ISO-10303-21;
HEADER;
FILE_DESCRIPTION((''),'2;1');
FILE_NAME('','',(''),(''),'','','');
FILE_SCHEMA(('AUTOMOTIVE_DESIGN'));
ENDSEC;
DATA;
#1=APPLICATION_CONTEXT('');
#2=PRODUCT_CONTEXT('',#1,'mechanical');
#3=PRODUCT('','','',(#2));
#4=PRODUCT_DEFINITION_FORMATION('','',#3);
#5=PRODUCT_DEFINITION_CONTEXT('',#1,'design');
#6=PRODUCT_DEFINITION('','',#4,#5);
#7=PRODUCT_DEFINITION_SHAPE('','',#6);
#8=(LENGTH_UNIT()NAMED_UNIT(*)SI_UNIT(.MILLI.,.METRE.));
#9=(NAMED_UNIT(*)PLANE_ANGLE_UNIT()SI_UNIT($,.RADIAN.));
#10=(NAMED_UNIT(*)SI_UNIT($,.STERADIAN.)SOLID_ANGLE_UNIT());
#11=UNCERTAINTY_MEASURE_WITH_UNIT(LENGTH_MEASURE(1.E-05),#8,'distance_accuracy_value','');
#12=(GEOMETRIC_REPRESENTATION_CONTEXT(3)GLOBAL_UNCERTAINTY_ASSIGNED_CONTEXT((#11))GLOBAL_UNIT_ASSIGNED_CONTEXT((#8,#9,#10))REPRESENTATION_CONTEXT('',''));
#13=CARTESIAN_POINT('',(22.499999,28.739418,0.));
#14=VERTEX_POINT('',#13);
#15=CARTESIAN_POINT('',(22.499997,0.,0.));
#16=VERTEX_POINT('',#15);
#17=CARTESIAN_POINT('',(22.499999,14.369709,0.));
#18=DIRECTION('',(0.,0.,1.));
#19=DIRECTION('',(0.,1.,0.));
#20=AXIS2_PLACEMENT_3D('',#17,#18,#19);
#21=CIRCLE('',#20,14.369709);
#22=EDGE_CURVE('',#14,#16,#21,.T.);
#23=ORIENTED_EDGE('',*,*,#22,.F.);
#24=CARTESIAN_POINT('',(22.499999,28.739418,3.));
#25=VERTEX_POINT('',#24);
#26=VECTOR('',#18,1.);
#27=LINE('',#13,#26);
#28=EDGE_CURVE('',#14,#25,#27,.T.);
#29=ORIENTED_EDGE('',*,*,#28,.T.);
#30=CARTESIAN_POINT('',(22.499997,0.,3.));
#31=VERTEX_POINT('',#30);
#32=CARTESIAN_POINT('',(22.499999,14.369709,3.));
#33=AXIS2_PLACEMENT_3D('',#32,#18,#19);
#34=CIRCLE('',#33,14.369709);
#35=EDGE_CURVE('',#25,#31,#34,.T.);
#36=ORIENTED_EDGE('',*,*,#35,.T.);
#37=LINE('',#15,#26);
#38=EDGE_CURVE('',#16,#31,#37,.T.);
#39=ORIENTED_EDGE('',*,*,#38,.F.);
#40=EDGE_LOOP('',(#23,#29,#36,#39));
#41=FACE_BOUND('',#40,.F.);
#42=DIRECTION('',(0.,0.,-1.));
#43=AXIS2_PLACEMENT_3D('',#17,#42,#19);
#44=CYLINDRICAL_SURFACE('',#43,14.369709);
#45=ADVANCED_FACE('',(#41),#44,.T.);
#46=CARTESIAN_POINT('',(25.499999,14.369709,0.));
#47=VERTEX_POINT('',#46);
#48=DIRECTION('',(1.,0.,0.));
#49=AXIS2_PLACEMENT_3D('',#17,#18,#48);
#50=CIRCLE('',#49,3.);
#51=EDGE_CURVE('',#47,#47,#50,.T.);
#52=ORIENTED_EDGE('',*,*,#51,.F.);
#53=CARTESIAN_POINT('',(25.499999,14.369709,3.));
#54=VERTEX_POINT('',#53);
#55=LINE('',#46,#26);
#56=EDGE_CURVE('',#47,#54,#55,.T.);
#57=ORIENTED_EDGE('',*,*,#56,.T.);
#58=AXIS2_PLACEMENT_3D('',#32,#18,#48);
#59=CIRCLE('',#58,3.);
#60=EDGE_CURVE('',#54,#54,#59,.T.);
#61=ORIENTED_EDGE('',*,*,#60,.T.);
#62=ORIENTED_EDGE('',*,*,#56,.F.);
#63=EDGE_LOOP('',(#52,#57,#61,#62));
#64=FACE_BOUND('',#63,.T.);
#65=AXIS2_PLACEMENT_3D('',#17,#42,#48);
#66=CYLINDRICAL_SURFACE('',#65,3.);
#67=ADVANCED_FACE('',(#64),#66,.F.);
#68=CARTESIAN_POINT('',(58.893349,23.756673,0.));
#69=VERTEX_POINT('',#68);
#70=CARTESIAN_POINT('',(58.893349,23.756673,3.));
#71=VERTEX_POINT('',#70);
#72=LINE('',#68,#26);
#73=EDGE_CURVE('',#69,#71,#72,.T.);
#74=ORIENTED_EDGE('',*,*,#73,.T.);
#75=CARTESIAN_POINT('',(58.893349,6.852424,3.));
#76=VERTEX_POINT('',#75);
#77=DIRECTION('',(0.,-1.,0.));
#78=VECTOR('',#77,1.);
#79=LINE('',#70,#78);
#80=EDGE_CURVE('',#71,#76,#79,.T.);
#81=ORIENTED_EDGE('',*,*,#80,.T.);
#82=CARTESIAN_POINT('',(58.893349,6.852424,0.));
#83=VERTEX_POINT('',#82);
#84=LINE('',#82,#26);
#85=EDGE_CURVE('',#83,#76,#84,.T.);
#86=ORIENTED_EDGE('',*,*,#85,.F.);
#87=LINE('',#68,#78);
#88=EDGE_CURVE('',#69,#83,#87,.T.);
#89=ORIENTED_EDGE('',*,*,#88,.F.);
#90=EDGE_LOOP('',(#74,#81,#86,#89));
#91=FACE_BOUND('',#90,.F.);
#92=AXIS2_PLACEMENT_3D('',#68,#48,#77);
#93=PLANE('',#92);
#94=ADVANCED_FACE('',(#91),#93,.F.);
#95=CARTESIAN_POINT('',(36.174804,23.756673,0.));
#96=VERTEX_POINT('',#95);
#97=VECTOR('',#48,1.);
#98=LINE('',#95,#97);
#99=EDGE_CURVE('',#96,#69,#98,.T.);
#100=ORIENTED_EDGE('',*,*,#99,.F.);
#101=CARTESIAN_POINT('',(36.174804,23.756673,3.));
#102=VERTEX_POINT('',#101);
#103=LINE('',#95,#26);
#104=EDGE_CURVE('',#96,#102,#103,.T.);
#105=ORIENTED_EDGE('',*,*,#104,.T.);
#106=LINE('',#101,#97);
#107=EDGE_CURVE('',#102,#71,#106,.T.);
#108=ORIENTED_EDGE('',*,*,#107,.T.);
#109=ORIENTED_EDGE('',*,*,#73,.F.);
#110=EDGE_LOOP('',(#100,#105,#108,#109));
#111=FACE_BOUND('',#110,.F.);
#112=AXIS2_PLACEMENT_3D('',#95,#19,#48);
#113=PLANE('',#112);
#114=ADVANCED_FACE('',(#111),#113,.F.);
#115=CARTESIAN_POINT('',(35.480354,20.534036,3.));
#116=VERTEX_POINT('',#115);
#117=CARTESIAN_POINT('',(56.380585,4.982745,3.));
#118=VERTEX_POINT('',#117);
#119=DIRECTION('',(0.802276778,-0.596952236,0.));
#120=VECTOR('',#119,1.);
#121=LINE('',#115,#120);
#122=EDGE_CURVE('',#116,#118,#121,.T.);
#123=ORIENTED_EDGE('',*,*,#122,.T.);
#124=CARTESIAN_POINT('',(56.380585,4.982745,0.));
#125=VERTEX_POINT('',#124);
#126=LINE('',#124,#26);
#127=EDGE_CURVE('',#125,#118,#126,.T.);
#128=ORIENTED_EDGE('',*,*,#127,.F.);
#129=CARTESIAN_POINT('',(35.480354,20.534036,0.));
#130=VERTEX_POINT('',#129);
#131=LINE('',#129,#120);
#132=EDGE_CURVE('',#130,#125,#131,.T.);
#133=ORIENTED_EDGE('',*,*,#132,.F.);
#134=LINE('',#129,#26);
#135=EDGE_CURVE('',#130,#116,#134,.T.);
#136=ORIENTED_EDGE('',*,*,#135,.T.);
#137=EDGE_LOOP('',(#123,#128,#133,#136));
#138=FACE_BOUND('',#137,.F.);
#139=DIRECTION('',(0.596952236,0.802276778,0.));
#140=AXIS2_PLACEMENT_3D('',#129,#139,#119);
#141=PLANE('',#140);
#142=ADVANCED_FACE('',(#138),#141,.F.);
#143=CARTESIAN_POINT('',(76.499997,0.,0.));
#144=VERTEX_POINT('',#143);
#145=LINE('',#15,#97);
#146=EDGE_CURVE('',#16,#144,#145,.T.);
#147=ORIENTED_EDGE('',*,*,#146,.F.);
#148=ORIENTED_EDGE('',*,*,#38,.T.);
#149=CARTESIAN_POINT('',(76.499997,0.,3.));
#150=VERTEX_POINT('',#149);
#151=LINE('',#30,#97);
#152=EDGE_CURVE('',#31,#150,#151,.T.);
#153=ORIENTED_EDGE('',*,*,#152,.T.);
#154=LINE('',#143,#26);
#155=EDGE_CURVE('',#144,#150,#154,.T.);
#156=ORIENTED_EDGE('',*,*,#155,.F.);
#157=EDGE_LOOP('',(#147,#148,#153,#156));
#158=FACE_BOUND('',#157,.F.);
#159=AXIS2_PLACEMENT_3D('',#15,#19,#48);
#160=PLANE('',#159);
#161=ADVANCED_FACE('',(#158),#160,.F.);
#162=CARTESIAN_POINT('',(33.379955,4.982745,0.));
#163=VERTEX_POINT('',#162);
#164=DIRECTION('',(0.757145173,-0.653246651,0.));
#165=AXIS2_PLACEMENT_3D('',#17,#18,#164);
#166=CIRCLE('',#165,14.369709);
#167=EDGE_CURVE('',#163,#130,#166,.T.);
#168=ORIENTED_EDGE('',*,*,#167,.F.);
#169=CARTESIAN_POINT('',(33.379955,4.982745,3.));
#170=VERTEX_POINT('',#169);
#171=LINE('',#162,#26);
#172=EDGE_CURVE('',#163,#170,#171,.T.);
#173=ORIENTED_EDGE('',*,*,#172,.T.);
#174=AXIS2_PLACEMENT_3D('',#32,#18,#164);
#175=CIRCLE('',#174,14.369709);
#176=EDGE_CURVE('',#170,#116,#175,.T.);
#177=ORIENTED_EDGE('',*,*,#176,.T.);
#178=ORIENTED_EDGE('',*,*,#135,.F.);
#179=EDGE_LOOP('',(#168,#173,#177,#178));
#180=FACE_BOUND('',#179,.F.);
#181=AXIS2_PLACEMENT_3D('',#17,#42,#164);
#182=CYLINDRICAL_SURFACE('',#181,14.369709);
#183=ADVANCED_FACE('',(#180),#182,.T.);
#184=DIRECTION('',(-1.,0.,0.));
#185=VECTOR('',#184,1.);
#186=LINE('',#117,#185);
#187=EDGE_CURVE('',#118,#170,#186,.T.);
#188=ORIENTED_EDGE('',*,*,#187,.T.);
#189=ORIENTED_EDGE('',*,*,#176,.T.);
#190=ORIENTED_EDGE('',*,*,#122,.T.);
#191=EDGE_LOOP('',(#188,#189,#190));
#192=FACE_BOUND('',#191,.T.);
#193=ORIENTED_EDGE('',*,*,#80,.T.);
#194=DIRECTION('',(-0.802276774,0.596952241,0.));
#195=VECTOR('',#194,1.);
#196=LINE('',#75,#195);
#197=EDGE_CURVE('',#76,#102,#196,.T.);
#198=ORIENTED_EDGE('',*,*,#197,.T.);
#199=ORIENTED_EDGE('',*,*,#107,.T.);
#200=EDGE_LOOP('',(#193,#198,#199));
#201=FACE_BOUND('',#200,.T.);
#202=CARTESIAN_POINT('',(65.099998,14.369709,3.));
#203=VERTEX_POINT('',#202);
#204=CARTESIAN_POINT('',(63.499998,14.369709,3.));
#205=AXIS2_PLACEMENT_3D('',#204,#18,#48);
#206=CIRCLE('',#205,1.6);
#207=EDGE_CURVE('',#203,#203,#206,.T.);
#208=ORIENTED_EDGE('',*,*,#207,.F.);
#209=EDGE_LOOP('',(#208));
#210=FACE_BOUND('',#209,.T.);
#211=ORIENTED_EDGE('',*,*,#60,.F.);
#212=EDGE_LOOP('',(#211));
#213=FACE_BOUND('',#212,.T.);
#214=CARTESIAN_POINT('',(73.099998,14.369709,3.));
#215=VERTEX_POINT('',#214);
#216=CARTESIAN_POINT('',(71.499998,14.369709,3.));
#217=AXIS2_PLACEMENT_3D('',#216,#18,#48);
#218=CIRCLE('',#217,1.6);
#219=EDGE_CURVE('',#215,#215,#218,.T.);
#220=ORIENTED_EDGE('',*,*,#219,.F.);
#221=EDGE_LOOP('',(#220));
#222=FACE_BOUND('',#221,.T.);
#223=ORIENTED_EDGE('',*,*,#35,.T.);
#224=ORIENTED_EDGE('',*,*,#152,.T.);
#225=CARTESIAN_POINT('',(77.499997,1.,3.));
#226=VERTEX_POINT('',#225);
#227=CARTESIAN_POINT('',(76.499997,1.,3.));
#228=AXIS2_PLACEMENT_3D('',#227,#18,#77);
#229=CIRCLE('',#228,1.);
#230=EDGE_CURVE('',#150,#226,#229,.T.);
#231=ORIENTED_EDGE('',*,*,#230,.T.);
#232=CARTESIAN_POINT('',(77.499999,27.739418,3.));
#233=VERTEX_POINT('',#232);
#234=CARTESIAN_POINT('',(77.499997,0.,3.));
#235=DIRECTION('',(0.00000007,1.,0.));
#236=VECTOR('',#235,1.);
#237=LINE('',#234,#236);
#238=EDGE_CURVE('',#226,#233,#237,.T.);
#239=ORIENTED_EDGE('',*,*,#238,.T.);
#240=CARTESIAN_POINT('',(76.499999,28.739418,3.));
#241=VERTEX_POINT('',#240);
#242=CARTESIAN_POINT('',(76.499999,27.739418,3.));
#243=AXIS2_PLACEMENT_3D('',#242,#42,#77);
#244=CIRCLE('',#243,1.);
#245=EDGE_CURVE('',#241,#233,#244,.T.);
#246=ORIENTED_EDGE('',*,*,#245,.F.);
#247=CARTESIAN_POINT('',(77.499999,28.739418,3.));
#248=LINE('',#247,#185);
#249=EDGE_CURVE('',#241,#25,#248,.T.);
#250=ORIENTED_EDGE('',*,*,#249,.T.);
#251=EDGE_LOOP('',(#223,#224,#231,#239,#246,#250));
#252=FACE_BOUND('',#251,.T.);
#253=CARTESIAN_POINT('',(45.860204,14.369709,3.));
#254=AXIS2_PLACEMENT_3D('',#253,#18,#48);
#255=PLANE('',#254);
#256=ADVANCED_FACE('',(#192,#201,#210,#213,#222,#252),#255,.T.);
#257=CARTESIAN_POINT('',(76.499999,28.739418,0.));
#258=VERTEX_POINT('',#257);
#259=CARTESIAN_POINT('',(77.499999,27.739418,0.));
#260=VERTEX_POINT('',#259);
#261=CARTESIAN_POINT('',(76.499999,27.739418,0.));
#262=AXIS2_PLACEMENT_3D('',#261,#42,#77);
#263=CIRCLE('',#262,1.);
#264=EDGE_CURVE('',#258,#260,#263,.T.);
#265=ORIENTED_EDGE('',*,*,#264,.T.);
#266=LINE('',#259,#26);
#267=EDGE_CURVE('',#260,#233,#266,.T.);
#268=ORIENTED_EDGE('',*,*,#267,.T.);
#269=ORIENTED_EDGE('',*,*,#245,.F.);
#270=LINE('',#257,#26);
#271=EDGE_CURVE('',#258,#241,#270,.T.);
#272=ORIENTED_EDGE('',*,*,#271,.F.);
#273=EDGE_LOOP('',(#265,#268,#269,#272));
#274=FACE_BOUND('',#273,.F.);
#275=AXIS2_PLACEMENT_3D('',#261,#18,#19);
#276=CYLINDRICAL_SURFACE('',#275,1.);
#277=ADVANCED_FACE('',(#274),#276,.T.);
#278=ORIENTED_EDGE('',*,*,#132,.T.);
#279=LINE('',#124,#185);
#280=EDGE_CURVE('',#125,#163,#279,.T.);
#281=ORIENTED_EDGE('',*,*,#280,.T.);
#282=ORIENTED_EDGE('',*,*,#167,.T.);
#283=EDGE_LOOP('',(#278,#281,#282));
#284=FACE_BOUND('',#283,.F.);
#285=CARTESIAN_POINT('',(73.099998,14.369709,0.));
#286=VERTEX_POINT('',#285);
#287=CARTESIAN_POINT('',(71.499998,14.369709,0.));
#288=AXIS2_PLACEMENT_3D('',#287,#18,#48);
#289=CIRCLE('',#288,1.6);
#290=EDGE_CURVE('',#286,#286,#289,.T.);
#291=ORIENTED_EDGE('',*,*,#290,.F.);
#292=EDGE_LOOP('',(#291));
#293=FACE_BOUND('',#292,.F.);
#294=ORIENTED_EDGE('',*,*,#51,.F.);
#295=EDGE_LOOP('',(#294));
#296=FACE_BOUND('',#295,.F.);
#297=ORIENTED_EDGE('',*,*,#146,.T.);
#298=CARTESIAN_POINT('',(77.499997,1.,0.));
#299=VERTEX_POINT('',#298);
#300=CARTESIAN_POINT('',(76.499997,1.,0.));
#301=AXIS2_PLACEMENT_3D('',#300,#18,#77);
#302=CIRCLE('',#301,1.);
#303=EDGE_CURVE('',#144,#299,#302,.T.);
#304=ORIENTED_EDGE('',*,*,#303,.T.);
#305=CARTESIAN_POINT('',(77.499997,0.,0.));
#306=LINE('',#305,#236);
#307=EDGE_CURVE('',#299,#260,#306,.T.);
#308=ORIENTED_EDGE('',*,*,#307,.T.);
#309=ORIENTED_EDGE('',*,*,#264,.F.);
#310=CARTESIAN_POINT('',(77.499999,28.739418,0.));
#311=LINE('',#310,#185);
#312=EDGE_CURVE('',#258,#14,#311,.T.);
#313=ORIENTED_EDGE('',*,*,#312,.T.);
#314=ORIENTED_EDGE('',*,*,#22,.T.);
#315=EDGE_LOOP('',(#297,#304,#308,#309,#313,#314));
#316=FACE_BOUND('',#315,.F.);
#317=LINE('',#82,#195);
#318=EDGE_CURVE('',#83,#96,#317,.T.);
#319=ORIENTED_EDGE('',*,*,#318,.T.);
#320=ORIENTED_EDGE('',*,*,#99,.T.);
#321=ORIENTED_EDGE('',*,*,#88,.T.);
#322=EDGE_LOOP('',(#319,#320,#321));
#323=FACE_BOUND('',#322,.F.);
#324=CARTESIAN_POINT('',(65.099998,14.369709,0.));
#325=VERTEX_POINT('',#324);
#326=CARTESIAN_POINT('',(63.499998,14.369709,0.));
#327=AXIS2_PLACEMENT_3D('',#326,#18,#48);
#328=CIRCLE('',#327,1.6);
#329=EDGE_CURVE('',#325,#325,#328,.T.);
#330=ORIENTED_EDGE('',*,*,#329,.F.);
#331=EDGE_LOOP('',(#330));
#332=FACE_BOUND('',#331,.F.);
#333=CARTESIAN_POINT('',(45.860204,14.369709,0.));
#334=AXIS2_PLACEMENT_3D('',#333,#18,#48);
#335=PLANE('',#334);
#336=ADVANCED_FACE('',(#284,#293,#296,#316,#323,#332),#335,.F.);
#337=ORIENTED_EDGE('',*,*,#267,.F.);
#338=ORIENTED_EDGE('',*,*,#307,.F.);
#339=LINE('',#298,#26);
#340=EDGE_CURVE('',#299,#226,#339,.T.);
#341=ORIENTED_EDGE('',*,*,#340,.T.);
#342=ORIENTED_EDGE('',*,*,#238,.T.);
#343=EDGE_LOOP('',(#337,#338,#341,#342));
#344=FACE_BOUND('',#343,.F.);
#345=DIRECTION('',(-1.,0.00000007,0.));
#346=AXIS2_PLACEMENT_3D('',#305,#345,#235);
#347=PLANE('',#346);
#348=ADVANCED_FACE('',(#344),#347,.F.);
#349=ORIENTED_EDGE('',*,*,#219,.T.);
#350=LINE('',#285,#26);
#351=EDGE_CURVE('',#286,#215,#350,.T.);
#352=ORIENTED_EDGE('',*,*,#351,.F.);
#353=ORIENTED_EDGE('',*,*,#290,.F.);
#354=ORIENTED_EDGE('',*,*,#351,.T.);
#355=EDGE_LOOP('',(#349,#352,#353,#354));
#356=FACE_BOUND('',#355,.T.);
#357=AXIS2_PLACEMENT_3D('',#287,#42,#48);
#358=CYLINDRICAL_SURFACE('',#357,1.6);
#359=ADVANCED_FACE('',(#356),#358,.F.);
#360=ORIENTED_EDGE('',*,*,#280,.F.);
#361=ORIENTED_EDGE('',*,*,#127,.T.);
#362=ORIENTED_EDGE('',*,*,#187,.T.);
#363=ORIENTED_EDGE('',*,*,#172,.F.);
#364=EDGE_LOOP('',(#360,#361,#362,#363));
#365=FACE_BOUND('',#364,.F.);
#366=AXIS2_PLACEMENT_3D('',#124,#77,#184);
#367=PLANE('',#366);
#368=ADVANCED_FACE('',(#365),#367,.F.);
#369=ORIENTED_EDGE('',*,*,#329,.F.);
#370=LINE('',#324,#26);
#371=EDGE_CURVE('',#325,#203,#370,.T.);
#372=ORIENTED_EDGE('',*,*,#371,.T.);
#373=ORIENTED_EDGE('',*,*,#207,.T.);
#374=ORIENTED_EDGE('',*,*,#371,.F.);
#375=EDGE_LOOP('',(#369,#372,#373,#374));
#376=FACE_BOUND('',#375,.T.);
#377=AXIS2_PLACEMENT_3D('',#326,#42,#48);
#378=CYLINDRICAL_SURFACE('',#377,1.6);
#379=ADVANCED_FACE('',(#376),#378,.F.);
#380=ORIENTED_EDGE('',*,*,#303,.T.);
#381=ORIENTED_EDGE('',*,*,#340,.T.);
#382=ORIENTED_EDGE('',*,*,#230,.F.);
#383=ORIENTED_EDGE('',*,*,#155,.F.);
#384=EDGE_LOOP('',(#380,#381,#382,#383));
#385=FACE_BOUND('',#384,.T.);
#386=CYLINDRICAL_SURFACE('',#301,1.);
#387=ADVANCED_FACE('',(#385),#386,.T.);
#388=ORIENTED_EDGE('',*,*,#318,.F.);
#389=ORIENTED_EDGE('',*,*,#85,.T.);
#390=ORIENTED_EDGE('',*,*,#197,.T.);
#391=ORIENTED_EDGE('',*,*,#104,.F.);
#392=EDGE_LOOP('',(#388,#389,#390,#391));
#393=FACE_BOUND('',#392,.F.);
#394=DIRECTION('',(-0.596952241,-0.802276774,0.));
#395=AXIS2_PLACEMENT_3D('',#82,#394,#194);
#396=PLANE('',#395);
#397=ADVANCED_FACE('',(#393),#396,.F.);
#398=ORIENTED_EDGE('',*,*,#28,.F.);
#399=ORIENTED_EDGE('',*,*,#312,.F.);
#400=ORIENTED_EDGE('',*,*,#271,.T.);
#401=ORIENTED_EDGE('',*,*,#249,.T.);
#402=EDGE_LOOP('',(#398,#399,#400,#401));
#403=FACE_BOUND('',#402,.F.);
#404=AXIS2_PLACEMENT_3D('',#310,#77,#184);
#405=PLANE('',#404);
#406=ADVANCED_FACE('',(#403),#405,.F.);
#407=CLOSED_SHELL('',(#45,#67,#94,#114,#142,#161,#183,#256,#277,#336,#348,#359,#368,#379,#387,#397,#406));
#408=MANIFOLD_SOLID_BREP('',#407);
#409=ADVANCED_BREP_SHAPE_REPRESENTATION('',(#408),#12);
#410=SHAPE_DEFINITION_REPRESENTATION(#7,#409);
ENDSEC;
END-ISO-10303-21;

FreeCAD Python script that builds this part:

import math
import FreeCAD as App
import Part
import Sketcher
from FreeCAD import Vector
Q = App.Units.Quantity


def edges_at(feature, points):
    """Names of the edges that pass closest to the given points."""
    edges = feature.Shape.Edges
    near = lambda p: min(range(len(edges)), key=lambda i: edges[i].distToShape(Part.Vertex(*p))[0])
    return sorted({f"Edge{near(p) + 1}" for p in points})


def add_polygon(sketch, points):
    """Adds a closed chain of lines whose ends are joined by coincident constraints."""
    first, n = sketch.GeometryCount, len(points)
    for a, b in zip(points, points[1:] + points[:1]):
        sketch.addGeometry(Part.LineSegment(App.Vector(*a, 0), App.Vector(*b, 0)), False)
    for i in range(n):
        sketch.addConstraint(Sketcher.Constraint("Coincident", first + i, 2, first + (i + 1) % n, 1))

doc = App.newDocument("Part")
body = doc.addObject("PartDesign::Body", "Body")

# Sketch on XY plane
sketch1 = doc.addObject("Sketcher::SketchObject", "Sketch")
body.addObject(sketch1)
sketch1.AttachmentSupport = (doc.XY_Plane, [""])
sketch1.MapMode = "FlatFace"
sketch1.addGeometry(Part.ArcOfCircle(Part.Circle(Vector(22.499999, 14.369709, 0), Vector(0, 0, 1), 14.369709), math.radians(90), math.radians(269.999992)), False)  # 0
sketch1.addGeometry(Part.LineSegment(Vector(22.499997, 0, 0), Vector(77.499997, 0, 0)), False)  # 1
sketch1.addGeometry(Part.LineSegment(Vector(77.499997, 0, 0), Vector(77.499999, 28.739418, 0)), False)  # 2
sketch1.addGeometry(Part.LineSegment(Vector(77.499999, 28.739418, 0), Vector(22.499999, 28.739418, 0)), False)  # 3
sketch1.addGeometry(Part.ArcOfCircle(Part.Circle(Vector(22.499999, 14.369709, 0), Vector(0, 0, 1), 14.369709), math.radians(-40.786835), math.radians(25.402886)), False)  # 4
sketch1.addGeometry(Part.LineSegment(Vector(35.480354, 20.534036, 0), Vector(56.380585, 4.982745, 0)), False)  # 5
sketch1.addGeometry(Part.LineSegment(Vector(56.380585, 4.982745, 0), Vector(33.379955, 4.982745, 0)), False)  # 6
sketch1.addGeometry(Part.Circle(Vector(22.499999, 14.369709, 0), Vector(0, 0, 1), 3), False)  # 7
add_polygon(sketch1, [(58.893349, 6.852424), (36.174804, 23.756673), (58.893349, 23.756673)])  # lines 8-10
sketch1.addGeometry(Part.Circle(Vector(63.499998, 14.369709, 0), Vector(0, 0, 1), 1.6), False)  # 11
sketch1.addGeometry(Part.Circle(Vector(71.499998, 14.369709, 0), Vector(0, 0, 1), 1.6), False)  # 12
sketch1.addConstraint(Sketcher.Constraint("Tangent", 0, 2, 1, 1))
sketch1.addConstraint(Sketcher.Constraint("Coincident", 1, 2, 2, 1))
sketch1.addConstraint(Sketcher.Constraint("Coincident", 2, 2, 3, 1))
sketch1.addConstraint(Sketcher.Constraint("Tangent", 3, 2, 0, 1))
sketch1.addConstraint(Sketcher.Constraint("Coincident", 4, 2, 5, 1))
sketch1.addConstraint(Sketcher.Constraint("Coincident", 5, 2, 6, 1))
sketch1.addConstraint(Sketcher.Constraint("Coincident", 6, 2, 4, 1))
sketch1.addConstraint(Sketcher.Constraint("Horizontal", 1))
sketch1.addConstraint(Sketcher.Constraint("Horizontal", 3))
sketch1.addConstraint(Sketcher.Constraint("Horizontal", 6))
sketch1.addConstraint(Sketcher.Constraint("Horizontal", 9))
sketch1.addConstraint(Sketcher.Constraint("Vertical", 10))
sketch1.addConstraint(Sketcher.Constraint("Coincident", 4, 3, 0, 3))
sketch1.addConstraint(Sketcher.Constraint("Coincident", 7, 3, 0, 3))
sketch1.addConstraint(Sketcher.Constraint("Equal", 0, 4))
sketch1.addConstraint(Sketcher.Constraint("Equal", 11, 12))
sketch1.addConstraint(Sketcher.Constraint("PointOnObject", 0, 2, -1))
sketch1.addConstraint(Sketcher.Constraint("Parallel", 5, 8))
sketch1.addConstraint(Sketcher.Constraint("Horizontal", 7, 3, 11, 3))
sketch1.addConstraint(Sketcher.Constraint("Horizontal", 11, 3, 12, 3))
sketch1.addConstraint(Sketcher.Constraint("Equal", 1, 3))
sketch1.addConstraint(Sketcher.Constraint("Diameter", 7, Q("6 mm")))
sketch1.addConstraint(Sketcher.Constraint("Diameter", 11, Q("3.2 mm")))
sketch1.addConstraint(Sketcher.Constraint("DistanceX", 1, 1, 1, 2, Q("55 mm")))
sketch1.addConstraint(Sketcher.Constraint("DistanceX", 4, 3, 11, 3, Q("40.999999 mm")))
sketch1.addConstraint(Sketcher.Constraint("DistanceX", 11, 3, 12, 3, Q("8 mm")))
sketch1.addConstraint(Sketcher.Constraint("DistanceX", -1, 1, 0, 3, Q("22.499999 mm")))
sketch1.addConstraint(Sketcher.Constraint("Radius", 0, Q("14.369709 mm")))
sketch1.addConstraint(Sketcher.Constraint("DistanceX", 6, 2, 6, 1, Q("23.00063 mm")))
sketch1.addConstraint(Sketcher.Constraint("DistanceY", 10, 2, 10, 1, Q("16.904249 mm")))
sketch1.addConstraint(Sketcher.Constraint("DistanceX", 6, 2, 4, 2, Q("2.100399 mm")))
sketch1.addConstraint(Sketcher.Constraint("Distance", 8, Q("28.31759 mm")))
sketch1.addConstraint(Sketcher.Constraint("DistanceX", -1, 1, 9, 2, Q("58.893349 mm")))
sketch1.addConstraint(Sketcher.Constraint("DistanceY", 5, 2, 10, 2, Q("1.869679 mm")))
pad1 = doc.addObject("PartDesign::Pad", "Pad")
body.addObject(pad1)
pad1.Profile = sketch1
pad1.Length = 3
doc.recompute()

fillet = doc.addObject("PartDesign::Fillet", "Fillet")
body.addObject(fillet)
fillet.Base = (pad1, edges_at(pad1, [(77.5, 0, 1.5), (77.5, 28.739, 1.5)]))
fillet.Radius = 1

doc.recompute()
